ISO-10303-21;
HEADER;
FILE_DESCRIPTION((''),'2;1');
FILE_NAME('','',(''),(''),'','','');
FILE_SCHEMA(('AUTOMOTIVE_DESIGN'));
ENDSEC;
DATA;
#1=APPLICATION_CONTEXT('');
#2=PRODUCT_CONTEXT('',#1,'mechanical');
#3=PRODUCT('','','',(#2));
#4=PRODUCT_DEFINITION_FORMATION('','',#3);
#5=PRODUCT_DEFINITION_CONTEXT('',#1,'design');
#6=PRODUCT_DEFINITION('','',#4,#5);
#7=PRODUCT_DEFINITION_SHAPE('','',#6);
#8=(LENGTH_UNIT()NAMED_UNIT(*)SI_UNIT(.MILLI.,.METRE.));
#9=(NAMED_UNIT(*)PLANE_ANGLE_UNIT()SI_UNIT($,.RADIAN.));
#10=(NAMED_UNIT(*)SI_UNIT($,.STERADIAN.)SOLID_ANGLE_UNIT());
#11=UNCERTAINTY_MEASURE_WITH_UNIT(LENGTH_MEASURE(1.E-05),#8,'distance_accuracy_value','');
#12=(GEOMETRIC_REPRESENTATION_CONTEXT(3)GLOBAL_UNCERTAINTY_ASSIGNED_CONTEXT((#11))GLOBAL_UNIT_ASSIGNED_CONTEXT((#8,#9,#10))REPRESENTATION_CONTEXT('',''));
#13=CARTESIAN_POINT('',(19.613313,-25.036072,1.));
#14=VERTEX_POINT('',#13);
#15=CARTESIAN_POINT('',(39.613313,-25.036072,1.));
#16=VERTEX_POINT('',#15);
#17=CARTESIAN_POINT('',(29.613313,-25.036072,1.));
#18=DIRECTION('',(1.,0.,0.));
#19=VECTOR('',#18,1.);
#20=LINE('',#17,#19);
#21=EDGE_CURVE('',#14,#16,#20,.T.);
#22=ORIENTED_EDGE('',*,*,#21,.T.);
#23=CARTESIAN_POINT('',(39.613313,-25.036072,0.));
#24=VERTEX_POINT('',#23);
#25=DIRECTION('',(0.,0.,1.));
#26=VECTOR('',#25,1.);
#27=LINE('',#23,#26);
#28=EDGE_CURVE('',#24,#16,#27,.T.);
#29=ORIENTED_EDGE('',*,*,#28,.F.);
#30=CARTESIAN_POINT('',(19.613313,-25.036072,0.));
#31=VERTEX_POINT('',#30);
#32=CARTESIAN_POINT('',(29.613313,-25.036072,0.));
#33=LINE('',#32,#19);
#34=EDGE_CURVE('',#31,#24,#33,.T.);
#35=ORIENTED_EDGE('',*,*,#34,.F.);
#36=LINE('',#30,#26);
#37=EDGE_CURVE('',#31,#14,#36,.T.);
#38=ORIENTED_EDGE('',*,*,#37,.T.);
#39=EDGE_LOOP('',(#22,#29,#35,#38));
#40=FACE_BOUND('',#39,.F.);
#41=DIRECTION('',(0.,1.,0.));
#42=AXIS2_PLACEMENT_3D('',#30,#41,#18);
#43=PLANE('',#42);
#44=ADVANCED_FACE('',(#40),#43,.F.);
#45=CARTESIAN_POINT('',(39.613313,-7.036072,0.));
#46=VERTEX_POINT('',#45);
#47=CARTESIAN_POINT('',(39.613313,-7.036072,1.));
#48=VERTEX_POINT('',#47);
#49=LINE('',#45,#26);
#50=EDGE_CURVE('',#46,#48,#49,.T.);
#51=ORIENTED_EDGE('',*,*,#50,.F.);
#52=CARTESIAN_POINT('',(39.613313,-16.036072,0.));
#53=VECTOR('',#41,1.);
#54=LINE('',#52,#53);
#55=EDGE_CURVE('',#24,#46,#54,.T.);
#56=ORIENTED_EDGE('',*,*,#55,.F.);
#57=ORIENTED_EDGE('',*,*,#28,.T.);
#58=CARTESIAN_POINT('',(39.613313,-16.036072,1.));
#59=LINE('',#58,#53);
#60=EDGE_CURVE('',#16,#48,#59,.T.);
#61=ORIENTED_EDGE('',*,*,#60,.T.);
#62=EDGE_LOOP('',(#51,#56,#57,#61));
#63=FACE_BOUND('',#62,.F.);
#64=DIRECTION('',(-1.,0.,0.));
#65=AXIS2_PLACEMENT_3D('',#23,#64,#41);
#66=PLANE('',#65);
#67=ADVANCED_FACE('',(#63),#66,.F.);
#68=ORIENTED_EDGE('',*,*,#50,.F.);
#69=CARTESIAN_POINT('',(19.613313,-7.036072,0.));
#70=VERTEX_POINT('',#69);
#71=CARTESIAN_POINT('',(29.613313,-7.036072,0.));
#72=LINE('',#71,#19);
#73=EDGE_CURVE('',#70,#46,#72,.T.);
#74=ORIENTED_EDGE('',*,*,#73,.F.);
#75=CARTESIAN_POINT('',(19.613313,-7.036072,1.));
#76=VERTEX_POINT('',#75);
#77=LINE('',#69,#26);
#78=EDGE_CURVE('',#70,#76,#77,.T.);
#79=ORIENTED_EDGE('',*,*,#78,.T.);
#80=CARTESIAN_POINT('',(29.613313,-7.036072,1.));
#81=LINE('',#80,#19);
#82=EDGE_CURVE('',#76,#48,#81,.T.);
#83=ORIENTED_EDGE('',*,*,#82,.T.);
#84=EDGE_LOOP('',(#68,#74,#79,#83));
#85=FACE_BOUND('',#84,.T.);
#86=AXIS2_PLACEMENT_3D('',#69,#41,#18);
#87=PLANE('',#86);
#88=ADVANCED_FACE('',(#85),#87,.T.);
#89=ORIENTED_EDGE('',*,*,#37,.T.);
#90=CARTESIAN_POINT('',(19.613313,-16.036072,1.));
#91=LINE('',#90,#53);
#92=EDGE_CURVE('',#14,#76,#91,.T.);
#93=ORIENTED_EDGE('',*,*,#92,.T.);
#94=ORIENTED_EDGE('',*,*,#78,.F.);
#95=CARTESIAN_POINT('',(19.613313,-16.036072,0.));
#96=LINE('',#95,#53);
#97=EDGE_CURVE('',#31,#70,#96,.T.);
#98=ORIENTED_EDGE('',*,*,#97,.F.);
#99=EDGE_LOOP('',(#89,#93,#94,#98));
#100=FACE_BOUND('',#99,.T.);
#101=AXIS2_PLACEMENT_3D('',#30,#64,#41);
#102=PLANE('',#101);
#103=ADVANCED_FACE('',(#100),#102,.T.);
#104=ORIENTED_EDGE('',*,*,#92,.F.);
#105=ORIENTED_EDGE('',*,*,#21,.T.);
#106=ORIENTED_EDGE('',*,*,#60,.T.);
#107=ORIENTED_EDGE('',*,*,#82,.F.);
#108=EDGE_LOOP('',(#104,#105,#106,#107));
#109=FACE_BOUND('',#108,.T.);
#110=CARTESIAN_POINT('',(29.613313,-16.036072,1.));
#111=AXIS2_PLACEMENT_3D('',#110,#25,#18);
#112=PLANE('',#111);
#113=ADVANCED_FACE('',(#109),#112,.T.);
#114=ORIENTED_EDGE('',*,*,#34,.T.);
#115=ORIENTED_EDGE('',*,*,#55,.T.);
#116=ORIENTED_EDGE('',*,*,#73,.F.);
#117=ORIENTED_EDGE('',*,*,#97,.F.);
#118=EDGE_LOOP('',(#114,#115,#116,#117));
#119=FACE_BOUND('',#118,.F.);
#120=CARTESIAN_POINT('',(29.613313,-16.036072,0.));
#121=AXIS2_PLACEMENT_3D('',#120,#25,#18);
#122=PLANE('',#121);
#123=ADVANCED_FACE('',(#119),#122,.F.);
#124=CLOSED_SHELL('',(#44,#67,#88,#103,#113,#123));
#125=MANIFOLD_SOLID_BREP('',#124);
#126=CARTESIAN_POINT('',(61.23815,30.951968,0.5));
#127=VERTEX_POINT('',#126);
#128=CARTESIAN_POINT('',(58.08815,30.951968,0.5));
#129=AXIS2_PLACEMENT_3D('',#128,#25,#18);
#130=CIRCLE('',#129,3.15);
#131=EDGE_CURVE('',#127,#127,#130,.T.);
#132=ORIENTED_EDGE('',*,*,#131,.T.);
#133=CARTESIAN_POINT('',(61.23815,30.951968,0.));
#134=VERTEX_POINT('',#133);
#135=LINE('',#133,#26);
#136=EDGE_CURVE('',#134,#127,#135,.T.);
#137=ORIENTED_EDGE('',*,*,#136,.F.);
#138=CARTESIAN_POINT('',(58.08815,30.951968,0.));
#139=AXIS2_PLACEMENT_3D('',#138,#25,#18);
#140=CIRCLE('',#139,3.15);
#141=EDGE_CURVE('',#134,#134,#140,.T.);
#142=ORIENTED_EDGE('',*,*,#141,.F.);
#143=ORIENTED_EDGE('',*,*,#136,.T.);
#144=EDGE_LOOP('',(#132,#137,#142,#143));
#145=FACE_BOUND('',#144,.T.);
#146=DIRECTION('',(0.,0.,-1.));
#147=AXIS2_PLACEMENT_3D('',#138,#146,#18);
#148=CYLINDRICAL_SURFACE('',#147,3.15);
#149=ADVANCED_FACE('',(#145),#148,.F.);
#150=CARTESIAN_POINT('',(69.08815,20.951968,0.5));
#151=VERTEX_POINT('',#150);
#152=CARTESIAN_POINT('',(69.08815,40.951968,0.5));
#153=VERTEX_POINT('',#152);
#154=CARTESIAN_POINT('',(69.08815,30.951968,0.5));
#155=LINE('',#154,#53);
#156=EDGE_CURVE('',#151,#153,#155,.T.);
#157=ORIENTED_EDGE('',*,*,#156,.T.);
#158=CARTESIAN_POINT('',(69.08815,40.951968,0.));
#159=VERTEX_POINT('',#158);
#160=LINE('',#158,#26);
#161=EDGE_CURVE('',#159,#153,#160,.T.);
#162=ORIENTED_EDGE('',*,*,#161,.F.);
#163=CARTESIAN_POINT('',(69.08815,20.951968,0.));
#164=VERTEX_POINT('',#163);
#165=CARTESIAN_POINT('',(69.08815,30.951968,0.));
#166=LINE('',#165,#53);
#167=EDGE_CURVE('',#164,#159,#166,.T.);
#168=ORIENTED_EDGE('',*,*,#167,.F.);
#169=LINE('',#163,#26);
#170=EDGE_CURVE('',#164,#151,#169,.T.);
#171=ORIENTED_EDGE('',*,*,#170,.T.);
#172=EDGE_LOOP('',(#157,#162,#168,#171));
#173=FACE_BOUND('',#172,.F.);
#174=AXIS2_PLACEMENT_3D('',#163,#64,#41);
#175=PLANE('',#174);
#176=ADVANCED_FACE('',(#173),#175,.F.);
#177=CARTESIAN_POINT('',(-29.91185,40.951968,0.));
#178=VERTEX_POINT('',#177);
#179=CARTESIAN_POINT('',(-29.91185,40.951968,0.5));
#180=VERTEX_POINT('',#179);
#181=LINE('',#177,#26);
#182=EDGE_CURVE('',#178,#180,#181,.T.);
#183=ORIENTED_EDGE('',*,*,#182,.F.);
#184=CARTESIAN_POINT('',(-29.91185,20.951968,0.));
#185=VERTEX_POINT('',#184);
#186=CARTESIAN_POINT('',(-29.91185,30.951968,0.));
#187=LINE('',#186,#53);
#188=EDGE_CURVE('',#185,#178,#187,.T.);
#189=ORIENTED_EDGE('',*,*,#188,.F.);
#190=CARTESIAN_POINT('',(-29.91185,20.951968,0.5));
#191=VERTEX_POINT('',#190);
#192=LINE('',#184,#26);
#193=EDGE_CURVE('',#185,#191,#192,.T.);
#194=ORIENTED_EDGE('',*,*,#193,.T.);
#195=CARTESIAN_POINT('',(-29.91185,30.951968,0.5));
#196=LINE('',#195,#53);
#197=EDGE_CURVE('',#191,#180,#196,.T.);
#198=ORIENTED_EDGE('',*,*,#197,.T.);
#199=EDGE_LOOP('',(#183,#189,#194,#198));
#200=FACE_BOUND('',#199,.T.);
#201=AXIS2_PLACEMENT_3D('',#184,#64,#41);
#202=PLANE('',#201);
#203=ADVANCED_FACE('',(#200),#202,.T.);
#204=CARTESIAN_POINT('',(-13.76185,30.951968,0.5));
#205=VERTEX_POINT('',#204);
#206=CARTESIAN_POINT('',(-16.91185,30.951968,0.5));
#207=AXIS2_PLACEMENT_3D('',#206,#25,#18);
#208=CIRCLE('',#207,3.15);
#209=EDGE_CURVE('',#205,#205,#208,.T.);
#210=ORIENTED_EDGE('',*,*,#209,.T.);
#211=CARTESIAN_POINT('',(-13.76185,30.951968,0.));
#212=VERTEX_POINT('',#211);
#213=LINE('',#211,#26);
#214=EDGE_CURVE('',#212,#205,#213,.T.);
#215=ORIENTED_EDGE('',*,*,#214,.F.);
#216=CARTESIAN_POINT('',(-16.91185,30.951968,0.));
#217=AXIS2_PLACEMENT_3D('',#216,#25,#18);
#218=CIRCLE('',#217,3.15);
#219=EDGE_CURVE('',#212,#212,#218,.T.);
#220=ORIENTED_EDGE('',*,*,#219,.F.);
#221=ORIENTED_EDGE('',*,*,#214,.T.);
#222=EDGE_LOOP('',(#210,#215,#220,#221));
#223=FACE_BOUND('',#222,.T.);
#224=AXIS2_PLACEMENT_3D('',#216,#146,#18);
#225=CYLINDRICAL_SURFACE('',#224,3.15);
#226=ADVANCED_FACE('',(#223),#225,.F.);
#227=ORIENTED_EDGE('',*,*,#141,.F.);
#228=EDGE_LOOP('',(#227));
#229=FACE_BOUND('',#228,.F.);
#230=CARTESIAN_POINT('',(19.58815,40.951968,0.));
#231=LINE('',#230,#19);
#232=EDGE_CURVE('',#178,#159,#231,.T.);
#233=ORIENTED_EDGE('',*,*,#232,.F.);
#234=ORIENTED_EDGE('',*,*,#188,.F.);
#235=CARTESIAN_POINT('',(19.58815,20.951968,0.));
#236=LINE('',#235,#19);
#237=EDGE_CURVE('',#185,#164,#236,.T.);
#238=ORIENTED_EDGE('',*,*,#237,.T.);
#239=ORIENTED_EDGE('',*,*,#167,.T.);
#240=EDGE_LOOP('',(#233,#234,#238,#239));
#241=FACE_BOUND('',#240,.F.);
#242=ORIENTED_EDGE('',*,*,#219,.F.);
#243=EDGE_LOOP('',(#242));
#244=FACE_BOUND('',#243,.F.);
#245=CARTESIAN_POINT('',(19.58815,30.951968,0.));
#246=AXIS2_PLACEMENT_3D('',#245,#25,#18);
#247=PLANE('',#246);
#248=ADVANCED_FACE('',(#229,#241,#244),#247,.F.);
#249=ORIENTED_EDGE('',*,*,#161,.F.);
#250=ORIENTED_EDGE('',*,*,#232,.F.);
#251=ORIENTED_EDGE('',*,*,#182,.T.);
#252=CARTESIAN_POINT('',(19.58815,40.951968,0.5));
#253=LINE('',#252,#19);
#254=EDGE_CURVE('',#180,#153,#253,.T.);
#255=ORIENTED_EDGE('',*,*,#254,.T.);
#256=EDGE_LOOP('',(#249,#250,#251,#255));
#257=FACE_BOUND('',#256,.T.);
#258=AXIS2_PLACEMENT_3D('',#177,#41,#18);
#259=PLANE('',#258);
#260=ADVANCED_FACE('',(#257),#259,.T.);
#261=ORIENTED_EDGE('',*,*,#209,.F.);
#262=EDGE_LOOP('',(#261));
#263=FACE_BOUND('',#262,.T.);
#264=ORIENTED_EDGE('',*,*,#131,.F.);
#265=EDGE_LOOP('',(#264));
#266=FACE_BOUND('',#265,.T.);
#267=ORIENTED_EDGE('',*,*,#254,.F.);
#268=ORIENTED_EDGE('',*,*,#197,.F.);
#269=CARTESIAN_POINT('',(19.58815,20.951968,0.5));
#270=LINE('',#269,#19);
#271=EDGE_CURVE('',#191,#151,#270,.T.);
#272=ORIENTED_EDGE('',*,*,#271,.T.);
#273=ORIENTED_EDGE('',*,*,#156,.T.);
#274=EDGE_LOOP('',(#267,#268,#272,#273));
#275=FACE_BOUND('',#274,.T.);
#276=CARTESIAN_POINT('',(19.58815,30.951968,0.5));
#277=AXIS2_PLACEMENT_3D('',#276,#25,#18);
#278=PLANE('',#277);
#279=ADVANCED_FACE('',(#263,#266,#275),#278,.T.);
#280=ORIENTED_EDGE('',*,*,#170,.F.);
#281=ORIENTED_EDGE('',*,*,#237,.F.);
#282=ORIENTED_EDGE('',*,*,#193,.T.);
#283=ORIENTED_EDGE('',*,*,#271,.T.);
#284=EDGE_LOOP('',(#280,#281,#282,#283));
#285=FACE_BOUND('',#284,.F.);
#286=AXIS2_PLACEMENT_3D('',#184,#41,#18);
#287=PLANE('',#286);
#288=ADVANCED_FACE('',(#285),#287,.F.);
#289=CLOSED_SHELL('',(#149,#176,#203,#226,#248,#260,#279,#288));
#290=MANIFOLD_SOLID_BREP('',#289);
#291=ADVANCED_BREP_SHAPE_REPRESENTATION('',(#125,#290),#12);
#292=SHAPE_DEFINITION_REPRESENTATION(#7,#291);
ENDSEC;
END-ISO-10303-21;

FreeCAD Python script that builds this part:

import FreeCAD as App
import Part
import Sketcher
Q = App.Units.Quantity

doc = App.newDocument("Part")
body = doc.addObject("PartDesign::Body", "Body")

sketch1 = body.newObject("Sketcher::SketchObject", "Sketch")
sketch1.AttachmentSupport = (doc.getObject("XY_Plane"), [""])
sketch1.MapMode = "FlatFace"
sketch1.addGeometry([
    Part.LineSegment(App.Vector(-29.9, 41, 0), App.Vector(-29.9, 21, 0)),
    Part.LineSegment(App.Vector(-29.9, 21, 0), App.Vector(69.1, 21, 0)),
    Part.LineSegment(App.Vector(69.1, 21, 0), App.Vector(69.1, 41, 0)),
    Part.LineSegment(App.Vector(69.1, 41, 0), App.Vector(-29.9, 41, 0)),
    Part.Circle(App.Vector(-16.9, 31, 0), App.Vector(0, 0, 1), 3.1),
    Part.Circle(App.Vector(58.1, 31, 0), App.Vector(0, 0, 1), 3.1),
], False)
sketch1.addConstraint([
    Sketcher.Constraint("Coincident", 0, 2, 1, 1),
    Sketcher.Constraint("Coincident", 1, 2, 2, 1),
    Sketcher.Constraint("Coincident", 2, 2, 3, 1),
    Sketcher.Constraint("Coincident", 3, 2, 0, 1),
    Sketcher.Constraint("Vertical", 0),
    Sketcher.Constraint("Horizontal", 1),
    Sketcher.Constraint("Vertical", 2),
    Sketcher.Constraint("Horizontal", 3),
    Sketcher.Constraint("Equal", 4, 5),
    Sketcher.Constraint("Horizontal", 4, 3, 5, 3),
    Sketcher.Constraint("Diameter", 4, Q("6.3 mm")),
    Sketcher.Constraint("DistanceX", 1, 1, 1, 2, Q("99 mm")),
    Sketcher.Constraint("DistanceY", 0, 2, 0, 1, Q("20 mm")),
    Sketcher.Constraint("DistanceX", 4, 3, 5, 3, Q("75 mm")),
    Sketcher.Constraint("DistanceX", 0, 2, 4, 3, Q("13 mm")),
    Sketcher.Constraint("DistanceY", 0, 2, 4, 3, Q("10 mm")),
    Sketcher.Constraint("DistanceX", 4, 3, -1, 1, Q("16.91185 mm")),
    Sketcher.Constraint("DistanceY", -1, 1, 4, 3, Q("30.951968 mm")),
])
pad1 = body.newObject("PartDesign::Pad", "Pad")
pad1.Profile = sketch1
pad1.Length = 0.5
body2 = doc.addObject("PartDesign::Body", "Body001")

sketch2 = body2.newObject("Sketcher::SketchObject", "Sketch001")
sketch2.AttachmentSupport = (doc.getObject("XY_Plane001"), [""])
sketch2.MapMode = "FlatFace"
sketch2.addGeometry([
    Part.LineSegment(App.Vector(20, -7, 0), App.Vector(20, -25, 0)),
    Part.LineSegment(App.Vector(20, -25, 0), App.Vector(40, -25, 0)),
    Part.LineSegment(App.Vector(40, -25, 0), App.Vector(40, -7, 0)),
    Part.LineSegment(App.Vector(40, -7, 0), App.Vector(20, -7, 0)),
], False)
sketch2.addConstraint([
    Sketcher.Constraint("Coincident", 0, 2, 1, 1),
    Sketcher.Constraint("Coincident", 1, 2, 2, 1),
    Sketcher.Constraint("Coincident", 2, 2, 3, 1),
    Sketcher.Constraint("Coincident", 3, 2, 0, 1),
    Sketcher.Constraint("Vertical", 0),
    Sketcher.Constraint("Horizontal", 1),
    Sketcher.Constraint("Vertical", 2),
    Sketcher.Constraint("Horizontal", 3),
    Sketcher.Constraint("DistanceX", 1, 1, 1, 2, Q("20 mm")),
    Sketcher.Constraint("DistanceY", 0, 2, 0, 1, Q("18 mm")),
    Sketcher.Constraint("DistanceX", -1, 1, 0, 2, Q("19.613313 mm")),
    Sketcher.Constraint("DistanceY", 0, 2, -1, 1, Q("25.036072 mm")),
])
pad2 = body2.newObject("PartDesign::Pad", "Pad001")
pad2.Profile = sketch2
pad2.Length = 1

doc.recompute()
